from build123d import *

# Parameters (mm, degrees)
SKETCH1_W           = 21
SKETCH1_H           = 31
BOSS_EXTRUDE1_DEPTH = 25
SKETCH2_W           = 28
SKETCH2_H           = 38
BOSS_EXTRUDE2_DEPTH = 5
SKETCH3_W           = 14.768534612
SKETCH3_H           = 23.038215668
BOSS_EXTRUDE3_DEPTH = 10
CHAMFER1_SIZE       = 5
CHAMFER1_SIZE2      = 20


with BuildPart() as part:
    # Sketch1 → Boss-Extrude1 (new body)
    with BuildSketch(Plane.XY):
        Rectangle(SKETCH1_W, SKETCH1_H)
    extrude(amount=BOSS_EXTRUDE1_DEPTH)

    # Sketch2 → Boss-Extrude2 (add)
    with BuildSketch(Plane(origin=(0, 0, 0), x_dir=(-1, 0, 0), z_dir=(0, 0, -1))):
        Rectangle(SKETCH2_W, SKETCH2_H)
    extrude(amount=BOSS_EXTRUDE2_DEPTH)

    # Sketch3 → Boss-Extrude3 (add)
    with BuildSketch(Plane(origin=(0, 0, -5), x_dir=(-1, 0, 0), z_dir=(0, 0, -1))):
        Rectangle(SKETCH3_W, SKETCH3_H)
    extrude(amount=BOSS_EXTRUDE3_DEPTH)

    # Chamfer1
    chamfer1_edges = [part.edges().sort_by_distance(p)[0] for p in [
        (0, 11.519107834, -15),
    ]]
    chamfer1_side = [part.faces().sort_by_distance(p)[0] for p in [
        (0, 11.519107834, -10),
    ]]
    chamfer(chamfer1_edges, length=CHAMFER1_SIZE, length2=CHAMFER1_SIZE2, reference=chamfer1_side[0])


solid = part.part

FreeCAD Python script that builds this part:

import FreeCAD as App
import Part
import Sketcher
from FreeCAD import Vector


def edges_at(feature, points):
    """Names of the edges that pass closest to the given points."""
    edges = feature.Shape.Edges
    near = lambda p: min(range(len(edges)), key=lambda i: edges[i].distToShape(Part.Vertex(*p))[0])
    return sorted({f"Edge{near(p) + 1}" for p in points})


def add_polygon(sketch, points):
    """Adds a closed chain of lines whose ends are joined by coincident constraints."""
    first, n = sketch.GeometryCount, len(points)
    for a, b in zip(points, points[1:] + points[:1]):
        sketch.addGeometry(Part.LineSegment(App.Vector(*a, 0), App.Vector(*b, 0)), False)
    for i in range(n):
        sketch.addConstraint(Sketcher.Constraint("Coincident", first + i, 2, first + (i + 1) % n, 1))

doc = App.newDocument("Part")
params = doc.addObject("Spreadsheet::Sheet", "Params")
for row, (alias, value) in enumerate([
    ("sketch1_width", "21 mm"),
    ("sketch1_height", "31 mm"),
    ("pad1_length", "25 mm"),
    ("sketch2_width", "28 mm"),
    ("sketch2_height", "38 mm"),
    ("pad2_length", "5 mm"),
    ("pad3_length", "10 mm"),
    ("chamfer_size", "5 mm"),
    ("chamfer_size2", "20 mm"),
], start=1):
    params.set(f"A{row}", alias)
    params.set(f"B{row}", "=" + value)
    params.setAlias(f"B{row}", alias)

body = doc.addObject("PartDesign::Body", "Body")

sketch1 = body.newObject("Sketcher::SketchObject", "Sketch")
sketch1.AttachmentSupport = (doc.getObject("XY_Plane"), [""])
sketch1.MapMode = "FlatFace"
add_polygon(sketch1, [(-10, 16), (-10, -16), (10, -16), (10, 16)])
sketch1.addConstraint([
    Sketcher.Constraint("Vertical", 0),
    Sketcher.Constraint("Horizontal", 1),
    Sketcher.Constraint("Vertical", 2),
    Sketcher.Constraint("Horizontal", 3),
    Sketcher.Constraint("Symmetric", 0, 2, 2, 2, -1, 1),
    Sketcher.Constraint("DistanceX", 1, 1, 1, 2, 21.0),
    Sketcher.Constraint("DistanceY", 0, 2, 0, 1, 31.0),
])
sketch1.setExpression("Constraints[9]", "Params.sketch1_width")
sketch1.setExpression("Constraints[10]", "Params.sketch1_height")
pad1 = body.newObject("PartDesign::Pad", "Pad")
pad1.Profile = sketch1
pad1.setExpression("Length", "Params.pad1_length")

sketch2 = body.newObject("Sketcher::SketchObject", "Sketch001")
sketch2.AttachmentSupport = (doc.getObject("XY_Plane"), [""])
sketch2.MapMode = "FlatFace"
add_polygon(sketch2, [(14, 19), (14, -19), (-14, -19), (-14, 19)])
sketch2.addConstraint([
    Sketcher.Constraint("Vertical", 0),
    Sketcher.Constraint("Horizontal", 1),
    Sketcher.Constraint("Vertical", 2),
    Sketcher.Constraint("Horizontal", 3),
    Sketcher.Constraint("Symmetric", 0, 2, 2, 2, -1, 1),
    Sketcher.Constraint("DistanceX", 1, 2, 1, 1, 28.0),
    Sketcher.Constraint("DistanceY", 0, 2, 0, 1, 38.0),
])
sketch2.setExpression("Constraints[9]", "Params.sketch2_width")
sketch2.setExpression("Constraints[10]", "Params.sketch2_height")
pad2 = body.newObject("PartDesign::Pad", "Pad001")
pad2.Profile = sketch2
pad2.setExpression("Length", "Params.pad2_length")
pad2.Reversed = True

sketch3 = body.newObject("Sketcher::SketchObject", "Sketch002")
sketch3.AttachmentSupport = (doc.getObject("XY_Plane"), [""])
sketch3.MapMode = "FlatFace"
sketch3.AttachmentOffset = App.Placement(Vector(0, 0, -5), App.Rotation())
add_polygon(sketch3, [(7, 12), (7, -12), (-7, -12), (-7, 12)])
sketch3.addConstraint([
    Sketcher.Constraint("Vertical", 0),
    Sketcher.Constraint("Horizontal", 1),
    Sketcher.Constraint("Vertical", 2),
    Sketcher.Constraint("Horizontal", 3),
    Sketcher.Constraint("Symmetric", 0, 2, 2, 2, -1, 1),
    Sketcher.Constraint("DistanceX", 1, 2, 1, 1, 14.768535),
    Sketcher.Constraint("DistanceY", 0, 2, 0, 1, 23.038216),
])
pad3 = body.newObject("PartDesign::Pad", "Pad002")
pad3.Profile = sketch3
pad3.setExpression("Length", "Params.pad3_length")
pad3.Reversed = True
doc.recompute()

chamfer = body.newObject("PartDesign::Chamfer", "Chamfer")
chamfer.Base = (pad3, edges_at(pad3, [(0, 11.519, -15)]))
chamfer.ChamferType = "Two distances"
chamfer.setExpression("Size", "Params.chamfer_size")
chamfer.setExpression("Size2", "Params.chamfer_size2")

doc.recompute()
